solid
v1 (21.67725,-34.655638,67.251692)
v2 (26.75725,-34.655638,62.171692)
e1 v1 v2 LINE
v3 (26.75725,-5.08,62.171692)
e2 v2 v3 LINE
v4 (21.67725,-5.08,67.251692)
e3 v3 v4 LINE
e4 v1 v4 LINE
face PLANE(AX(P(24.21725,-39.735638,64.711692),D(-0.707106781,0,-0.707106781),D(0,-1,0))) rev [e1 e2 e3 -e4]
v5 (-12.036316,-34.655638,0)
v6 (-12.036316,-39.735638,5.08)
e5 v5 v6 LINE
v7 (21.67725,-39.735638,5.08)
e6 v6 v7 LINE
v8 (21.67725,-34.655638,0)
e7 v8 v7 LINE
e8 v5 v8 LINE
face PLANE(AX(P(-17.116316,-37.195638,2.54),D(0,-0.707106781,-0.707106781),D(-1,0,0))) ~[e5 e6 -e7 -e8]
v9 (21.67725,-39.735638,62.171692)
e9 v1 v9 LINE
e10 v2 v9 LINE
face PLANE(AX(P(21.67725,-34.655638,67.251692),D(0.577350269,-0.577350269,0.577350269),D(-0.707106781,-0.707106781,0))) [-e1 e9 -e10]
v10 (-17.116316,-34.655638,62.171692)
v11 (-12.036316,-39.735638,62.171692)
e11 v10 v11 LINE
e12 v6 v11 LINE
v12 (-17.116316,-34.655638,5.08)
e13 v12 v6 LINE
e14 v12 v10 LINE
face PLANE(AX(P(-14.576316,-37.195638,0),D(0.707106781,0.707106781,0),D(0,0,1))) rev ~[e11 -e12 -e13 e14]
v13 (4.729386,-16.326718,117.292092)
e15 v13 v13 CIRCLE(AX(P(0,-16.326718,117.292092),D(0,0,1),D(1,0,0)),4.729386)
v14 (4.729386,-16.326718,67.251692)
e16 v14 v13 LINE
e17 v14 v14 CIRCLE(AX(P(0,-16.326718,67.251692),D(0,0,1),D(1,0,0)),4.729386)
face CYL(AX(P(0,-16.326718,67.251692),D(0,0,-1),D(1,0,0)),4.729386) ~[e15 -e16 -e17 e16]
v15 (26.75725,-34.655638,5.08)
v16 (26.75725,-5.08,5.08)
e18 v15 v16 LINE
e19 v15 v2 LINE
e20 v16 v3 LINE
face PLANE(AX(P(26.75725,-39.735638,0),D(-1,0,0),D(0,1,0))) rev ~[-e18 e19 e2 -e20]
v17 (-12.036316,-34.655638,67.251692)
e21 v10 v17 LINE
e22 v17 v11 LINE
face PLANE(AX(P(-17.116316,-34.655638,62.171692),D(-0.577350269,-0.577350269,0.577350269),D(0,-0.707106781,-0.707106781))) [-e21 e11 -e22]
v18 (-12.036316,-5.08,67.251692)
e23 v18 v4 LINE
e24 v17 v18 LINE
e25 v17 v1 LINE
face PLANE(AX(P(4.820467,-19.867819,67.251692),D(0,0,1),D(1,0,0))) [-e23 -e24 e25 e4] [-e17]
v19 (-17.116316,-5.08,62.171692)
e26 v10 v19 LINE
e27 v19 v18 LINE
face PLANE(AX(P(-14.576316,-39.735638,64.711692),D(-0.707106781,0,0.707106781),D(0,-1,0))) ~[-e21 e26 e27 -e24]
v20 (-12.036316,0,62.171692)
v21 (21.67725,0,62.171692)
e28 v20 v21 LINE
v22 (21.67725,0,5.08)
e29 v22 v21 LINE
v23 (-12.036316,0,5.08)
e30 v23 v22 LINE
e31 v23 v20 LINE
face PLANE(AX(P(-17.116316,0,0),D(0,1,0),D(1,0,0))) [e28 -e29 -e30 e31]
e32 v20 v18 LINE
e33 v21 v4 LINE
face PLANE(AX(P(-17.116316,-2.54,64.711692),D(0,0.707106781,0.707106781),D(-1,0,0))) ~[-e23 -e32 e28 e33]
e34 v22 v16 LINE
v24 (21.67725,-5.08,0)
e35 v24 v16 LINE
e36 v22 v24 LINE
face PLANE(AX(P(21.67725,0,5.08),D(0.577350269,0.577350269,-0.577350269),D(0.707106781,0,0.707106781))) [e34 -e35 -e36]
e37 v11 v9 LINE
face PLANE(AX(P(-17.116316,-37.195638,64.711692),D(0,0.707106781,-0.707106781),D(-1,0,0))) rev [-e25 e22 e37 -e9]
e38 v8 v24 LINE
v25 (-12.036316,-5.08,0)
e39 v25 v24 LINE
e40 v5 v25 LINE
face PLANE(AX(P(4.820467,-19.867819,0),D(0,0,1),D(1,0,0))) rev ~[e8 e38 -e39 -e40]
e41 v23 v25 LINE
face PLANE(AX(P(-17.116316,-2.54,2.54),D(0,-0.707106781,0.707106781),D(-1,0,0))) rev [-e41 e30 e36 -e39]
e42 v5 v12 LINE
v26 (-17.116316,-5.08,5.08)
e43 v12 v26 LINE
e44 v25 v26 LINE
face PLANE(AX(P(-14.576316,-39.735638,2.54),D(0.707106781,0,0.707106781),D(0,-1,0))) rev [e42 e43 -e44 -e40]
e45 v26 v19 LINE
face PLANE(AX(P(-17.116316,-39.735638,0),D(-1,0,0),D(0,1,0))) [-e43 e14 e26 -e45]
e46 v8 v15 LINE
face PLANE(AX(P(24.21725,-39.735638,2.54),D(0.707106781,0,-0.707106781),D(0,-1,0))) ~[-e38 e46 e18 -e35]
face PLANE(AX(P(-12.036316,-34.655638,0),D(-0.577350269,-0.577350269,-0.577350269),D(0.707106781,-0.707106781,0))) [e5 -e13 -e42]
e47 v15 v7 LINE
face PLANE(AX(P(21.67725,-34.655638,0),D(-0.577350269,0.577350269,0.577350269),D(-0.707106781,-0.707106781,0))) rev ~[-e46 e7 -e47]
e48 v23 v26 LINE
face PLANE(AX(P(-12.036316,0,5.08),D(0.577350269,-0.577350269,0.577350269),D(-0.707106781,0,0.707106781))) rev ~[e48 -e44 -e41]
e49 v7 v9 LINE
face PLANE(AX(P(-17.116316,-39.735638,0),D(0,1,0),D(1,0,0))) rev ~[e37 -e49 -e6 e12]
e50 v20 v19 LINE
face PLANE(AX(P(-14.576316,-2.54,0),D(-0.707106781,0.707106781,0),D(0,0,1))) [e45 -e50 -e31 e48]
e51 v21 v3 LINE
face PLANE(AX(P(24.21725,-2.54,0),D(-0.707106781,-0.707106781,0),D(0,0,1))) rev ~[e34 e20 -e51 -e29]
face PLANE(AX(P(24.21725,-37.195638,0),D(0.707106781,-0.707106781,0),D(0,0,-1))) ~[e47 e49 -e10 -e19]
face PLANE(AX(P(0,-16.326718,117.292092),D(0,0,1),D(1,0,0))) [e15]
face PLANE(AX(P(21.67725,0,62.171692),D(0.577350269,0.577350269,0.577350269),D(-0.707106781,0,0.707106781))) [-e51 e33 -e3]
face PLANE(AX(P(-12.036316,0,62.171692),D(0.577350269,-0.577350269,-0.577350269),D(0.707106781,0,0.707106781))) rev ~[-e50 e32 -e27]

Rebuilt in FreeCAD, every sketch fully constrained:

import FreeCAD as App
import Part
import Sketcher

V = App.Vector
Q = App.Units.Quantity


def add_polygon(sketch, points):
    """Adds a closed chain of lines whose ends are joined by coincident constraints."""
    first, n = sketch.GeometryCount, len(points)
    for a, b in zip(points, points[1:] + points[:1]):
        sketch.addGeometry(Part.LineSegment(App.Vector(*a, 0), App.Vector(*b, 0)), False)
    for i in range(n):
        sketch.addConstraint(Sketcher.Constraint("Coincident", first + i, 2, first + (i + 1) % n, 1))

doc = App.newDocument("Part")
body = doc.addObject("PartDesign::Body", "Body")

# Sketch on XY plane
sketch1 = body.newObject("Sketcher::SketchObject", "Sketch")
sketch1.AttachmentSupport = (doc.getObject("XY_Plane"), [""])
sketch1.MapMode = "FlatFace"
add_polygon(sketch1, [(-17, 0), (-17, -40), (27, -40), (27, 0)])  # lines 0-3
sketch1.addConstraint(Sketcher.Constraint("Vertical", 0))
sketch1.addConstraint(Sketcher.Constraint("Horizontal", 1))
sketch1.addConstraint(Sketcher.Constraint("Vertical", 2))
sketch1.addConstraint(Sketcher.Constraint("Horizontal", 3))
sketch1.addConstraint(Sketcher.Constraint("PointOnObject", 2, 2, -1))
sketch1.addConstraint(Sketcher.Constraint("DistanceY", 0, 2, 0, 1, 39.735638))
sketch1.addConstraint(Sketcher.Constraint("DistanceX", 1, 1, 1, 2, 43.873566))
sketch1.addConstraint(Sketcher.Constraint("DistanceX", -1, 1, 1, 2, 26.75725))
pad1 = body.newObject("PartDesign::Pad", "Pad")
pad1.Profile = sketch1
pad1.Length = 67.251692
doc.recompute()

chamfer = body.newObject("PartDesign::Chamfer", "Chamfer")
chamfer.Base = (pad1, ["Edge1"])
chamfer.UseAllEdges = True
chamfer.Size = Q("0.2 in")

# Sketch on XY plane
sketch2 = body.newObject("Sketcher::SketchObject", "Sketch001")
sketch2.AttachmentSupport = (doc.getObject("XY_Plane"), [""])
sketch2.MapMode = "FlatFace"
sketch2.AttachmentOffset = App.Placement(V(0, 0, 67.251692), App.Rotation())
sketch2.addGeometry(Part.Circle(V(0, -16.3, 0), V(0, 0, 1), 4.7), False)
sketch2.addConstraint(Sketcher.Constraint("PointOnObject", 0, 3, -2))
sketch2.addConstraint(Sketcher.Constraint("Diameter", 0, 9.458772))
sketch2.addConstraint(Sketcher.Constraint("DistanceY", 0, 3, -1, 1, 16.326718))
pad2 = body.newObject("PartDesign::Pad", "Pad001")
pad2.Profile = sketch2
pad2.Length = 50.0404

doc.recompute()
